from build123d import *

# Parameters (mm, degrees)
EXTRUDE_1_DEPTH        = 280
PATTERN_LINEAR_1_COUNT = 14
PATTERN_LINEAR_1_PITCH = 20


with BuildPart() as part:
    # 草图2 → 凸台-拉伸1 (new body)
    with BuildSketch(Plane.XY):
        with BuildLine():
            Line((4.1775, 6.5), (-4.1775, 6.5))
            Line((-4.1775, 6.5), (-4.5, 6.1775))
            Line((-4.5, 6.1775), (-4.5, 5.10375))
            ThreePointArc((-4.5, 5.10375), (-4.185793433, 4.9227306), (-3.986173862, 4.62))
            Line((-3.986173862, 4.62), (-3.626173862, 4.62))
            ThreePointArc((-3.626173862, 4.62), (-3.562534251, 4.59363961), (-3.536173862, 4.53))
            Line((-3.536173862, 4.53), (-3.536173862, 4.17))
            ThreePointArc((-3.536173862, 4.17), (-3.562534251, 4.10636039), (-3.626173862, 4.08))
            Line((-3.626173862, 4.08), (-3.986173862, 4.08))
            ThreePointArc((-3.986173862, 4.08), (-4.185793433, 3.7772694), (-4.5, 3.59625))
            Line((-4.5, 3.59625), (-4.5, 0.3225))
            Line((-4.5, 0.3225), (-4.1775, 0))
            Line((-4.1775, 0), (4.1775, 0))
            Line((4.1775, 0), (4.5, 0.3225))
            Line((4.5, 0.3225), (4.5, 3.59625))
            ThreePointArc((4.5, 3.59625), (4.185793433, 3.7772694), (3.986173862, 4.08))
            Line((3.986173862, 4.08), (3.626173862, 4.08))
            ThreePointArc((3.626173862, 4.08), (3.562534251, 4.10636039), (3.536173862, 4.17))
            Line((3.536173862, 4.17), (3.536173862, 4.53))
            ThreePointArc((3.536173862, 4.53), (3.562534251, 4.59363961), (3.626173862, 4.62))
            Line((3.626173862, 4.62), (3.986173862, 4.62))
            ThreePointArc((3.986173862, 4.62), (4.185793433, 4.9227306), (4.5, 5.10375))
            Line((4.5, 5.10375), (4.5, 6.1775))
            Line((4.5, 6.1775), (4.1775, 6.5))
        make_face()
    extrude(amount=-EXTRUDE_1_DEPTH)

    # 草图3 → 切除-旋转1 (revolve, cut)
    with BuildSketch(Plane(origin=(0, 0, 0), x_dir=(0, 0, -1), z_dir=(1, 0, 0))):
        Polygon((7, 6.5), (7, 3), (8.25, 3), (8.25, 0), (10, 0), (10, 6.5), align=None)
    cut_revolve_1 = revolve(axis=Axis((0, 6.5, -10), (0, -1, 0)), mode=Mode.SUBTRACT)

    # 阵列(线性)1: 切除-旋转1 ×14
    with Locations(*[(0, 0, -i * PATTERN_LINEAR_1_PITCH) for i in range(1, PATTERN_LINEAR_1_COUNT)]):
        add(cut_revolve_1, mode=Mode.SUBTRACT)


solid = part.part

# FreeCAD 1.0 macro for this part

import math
import FreeCAD as App
import Part
import Sketcher

doc = App.newDocument("Part")
body = doc.addObject("PartDesign::Body", "Body")

# Sketch on XY plane
sketch1 = body.newObject("Sketcher::SketchObject", "Sketch")
sketch1.AttachmentSupport = (doc.getObject("XY_Plane"), [""])
sketch1.MapMode = "FlatFace"
sketch1.addGeometry([
    Part.LineSegment(App.Vector(4.18, 6.5, 0), App.Vector(-4.18, 6.5, 0)),  # 0
    Part.LineSegment(App.Vector(-4.18, 6.5, 0), App.Vector(-4.5, 6.18, 0)),  # 1
    Part.LineSegment(App.Vector(-4.5, 6.18, 0), App.Vector(-4.5, 5.1, 0)),  # 2
    Part.ArcOfCircle(Part.Circle(App.Vector(-4.73, 4.35, 0), App.Vector(0, 0, 1), 0.79), math.radians(20), math.radians(73)),  # 3
    Part.LineSegment(App.Vector(-3.99, 4.62, 0), App.Vector(-3.63, 4.62, 0)),  # 4
    Part.ArcOfCircle(Part.Circle(App.Vector(-3.63, 4.53, 0), App.Vector(0, 0, 1), 0.09), math.radians(0), math.radians(90)),  # 5
    Part.LineSegment(App.Vector(-3.54, 4.53, 0), App.Vector(-3.54, 4.17, 0)),  # 6
    Part.ArcOfCircle(Part.Circle(App.Vector(-3.63, 4.17, 0), App.Vector(0, 0, 1), 0.09), math.radians(-90), math.radians(0)),  # 7
    Part.LineSegment(App.Vector(-3.63, 4.08, 0), App.Vector(-3.99, 4.08, 0)),  # 8
    Part.ArcOfCircle(Part.Circle(App.Vector(-4.73, 4.35, 0), App.Vector(0, 0, 1), 0.79), math.radians(-73), math.radians(-20)),  # 9
    Part.LineSegment(App.Vector(-4.5, 3.6, 0), App.Vector(-4.5, 0.32, 0)),  # 10
    Part.LineSegment(App.Vector(-4.5, 0.32, 0), App.Vector(-4.18, 0, 0)),  # 11
    Part.LineSegment(App.Vector(-4.18, 0, 0), App.Vector(4.18, 0, 0)),  # 12
    Part.LineSegment(App.Vector(4.18, 0, 0), App.Vector(4.5, 0.32, 0)),  # 13
    Part.LineSegment(App.Vector(4.5, 0.32, 0), App.Vector(4.5, 3.6, 0)),  # 14
    Part.ArcOfCircle(Part.Circle(App.Vector(4.73, 4.35, 0), App.Vector(0, 0, 1), 0.79), math.radians(-160), math.radians(-107)),  # 15
    Part.LineSegment(App.Vector(3.99, 4.08, 0), App.Vector(3.63, 4.08, 0)),  # 16
    Part.ArcOfCircle(Part.Circle(App.Vector(3.63, 4.17, 0), App.Vector(0, 0, 1), 0.09), math.radians(180), math.radians(270)),  # 17
    Part.LineSegment(App.Vector(3.54, 4.17, 0), App.Vector(3.54, 4.53, 0)),  # 18
    Part.ArcOfCircle(Part.Circle(App.Vector(3.63, 4.53, 0), App.Vector(0, 0, 1), 0.09), math.radians(90), math.radians(180)),  # 19
    Part.LineSegment(App.Vector(3.63, 4.62, 0), App.Vector(3.99, 4.62, 0)),  # 20
    Part.ArcOfCircle(Part.Circle(App.Vector(4.73, 4.35, 0), App.Vector(0, 0, 1), 0.79), math.radians(107), math.radians(160)),  # 21
    Part.LineSegment(App.Vector(4.5, 5.1, 0), App.Vector(4.5, 6.18, 0)),  # 22
    Part.LineSegment(App.Vector(4.5, 6.18, 0), App.Vector(4.18, 6.5, 0)),  # 23
], False)
sketch1.addConstraint([
    Sketcher.Constraint("Coincident", 0, 2, 1, 1),
    Sketcher.Constraint("Coincident", 1, 2, 2, 1),
    Sketcher.Constraint("Coincident", 2, 2, 3, 2),
    Sketcher.Constraint("Coincident", 3, 1, 4, 1),
    Sketcher.Constraint("Tangent", 4, 2, 5, 2),
    Sketcher.Constraint("Tangent", 5, 1, 6, 1),
    Sketcher.Constraint("Tangent", 6, 2, 7, 2),
    Sketcher.Constraint("Tangent", 7, 1, 8, 1),
    Sketcher.Constraint("Coincident", 8, 2, 9, 2),
    Sketcher.Constraint("Coincident", 9, 1, 10, 1),
    Sketcher.Constraint("Coincident", 10, 2, 11, 1),
    Sketcher.Constraint("Coincident", 11, 2, 12, 1),
    Sketcher.Constraint("Coincident", 12, 2, 13, 1),
    Sketcher.Constraint("Coincident", 13, 2, 14, 1),
    Sketcher.Constraint("Coincident", 14, 2, 15, 2),
    Sketcher.Constraint("Coincident", 15, 1, 16, 1),
    Sketcher.Constraint("Tangent", 16, 2, 17, 2),
    Sketcher.Constraint("Tangent", 17, 1, 18, 1),
    Sketcher.Constraint("Tangent", 18, 2, 19, 2),
    Sketcher.Constraint("Tangent", 19, 1, 20, 1),
    Sketcher.Constraint("Coincident", 20, 2, 21, 2),
    Sketcher.Constraint("Coincident", 21, 1, 22, 1),
    Sketcher.Constraint("Coincident", 22, 2, 23, 1),
    Sketcher.Constraint("Coincident", 23, 2, 0, 1),
    Sketcher.Constraint("Horizontal", 0),
    Sketcher.Constraint("Vertical", 2),
    Sketcher.Constraint("Horizontal", 4),
    Sketcher.Constraint("Vertical", 6),
    Sketcher.Constraint("Horizontal", 8),
    Sketcher.Constraint("Vertical", 10),
    Sketcher.Constraint("Horizontal", 12),
    Sketcher.Constraint("Vertical", 14),
    Sketcher.Constraint("Horizontal", 16),
    Sketcher.Constraint("Vertical", 18),
    Sketcher.Constraint("Horizontal", 20),
    Sketcher.Constraint("Vertical", 22),
    Sketcher.Constraint("Coincident", 9, 3, 3, 3),
    Sketcher.Constraint("Coincident", 21, 3, 15, 3),
    Sketcher.Constraint("Equal", 5, 7),
    Sketcher.Constraint("Equal", 3, 9),
    Sketcher.Constraint("Equal", 9, 15),
    Sketcher.Constraint("Equal", 7, 17),
    Sketcher.Constraint("Equal", 17, 19),
    Sketcher.Constraint("Equal", 15, 21),
    Sketcher.Constraint("Symmetric", 11, 2, 12, 2, -1, 1),
    Sketcher.Constraint("Symmetric", 3, 3, 15, 3, -2),
    Sketcher.Constraint("Symmetric", 7, 3, 17, 3, -2),
    Sketcher.Constraint("Symmetric", 10, 2, 13, 2, -2),
    Sketcher.Constraint("Symmetric", 1, 2, 22, 2, -2),
    Sketcher.Constraint("Perpendicular", 1, 11),
    Sketcher.Constraint("Perpendicular", 11, 13),
    Sketcher.Constraint("Perpendicular", 13, 23),
    Sketcher.Constraint("Horizontal", 5, 3, 19, 3),
    Sketcher.Constraint("Vertical", 3, 1, 8, 2),
    Sketcher.Constraint("Vertical", 2, 2, 9, 1),
    Sketcher.Constraint("Vertical", 0, 2, 11, 2),
    Sketcher.Constraint("Equal", 20, 6),
    Sketcher.Constraint("Radius", 5, 0.09),
    Sketcher.Constraint("DistanceX", 4, 1, 4, 2, 0.36),
    Sketcher.Constraint("DistanceY", -1, 1, 0, 2, 6.5),
    Sketcher.Constraint("DistanceX", 1, 2, -1, 1, 4.5),
    Sketcher.Constraint("DistanceX", 0, 2, 0, 1, 8.355),
    Sketcher.Constraint("DistanceY", -1, 1, 3, 3, 4.35),
    Sketcher.Constraint("DistanceX", 3, 3, 15, 3, 9.45),
    Sketcher.Constraint("Radius", 3, 0.786616),
])
pad1 = body.newObject("PartDesign::Pad", "Pad")
pad1.Profile = sketch1
pad1.Length = 280
pad1.Reversed = True

# Sketch on YZ plane
sketch2 = body.newObject("Sketcher::SketchObject", "Sketch001")
sketch2.AttachmentSupport = (doc.getObject("YZ_Plane"), [""])
sketch2.MapMode = "FlatFace"
sketch2.addGeometry([
    Part.LineSegment(App.Vector(6.5, -7, 0), App.Vector(3, -7, 0)),  # 0
    Part.LineSegment(App.Vector(3, -7, 0), App.Vector(3, -8.2, 0)),  # 1
    Part.LineSegment(App.Vector(3, -8.2, 0), App.Vector(0, -8.2, 0)),  # 2
    Part.LineSegment(App.Vector(0, -8.2, 0), App.Vector(0, -10, 0)),  # 3
    Part.LineSegment(App.Vector(0, -10, 0), App.Vector(6.5, -10, 0)),  # 4
    Part.LineSegment(App.Vector(6.5, -10, 0), App.Vector(6.5, -7, 0)),  # 5
], False)
sketch2.addGeometry(Part.LineSegment(App.Vector(6.5, -10, 0), App.Vector(0, -10, 0)), True)  # axis
sketch2.addConstraint([
    Sketcher.Constraint("Coincident", 0, 2, 1, 1),
    Sketcher.Constraint("Coincident", 1, 2, 2, 1),
    Sketcher.Constraint("Coincident", 2, 2, 3, 1),
    Sketcher.Constraint("Coincident", 3, 2, 4, 1),
    Sketcher.Constraint("Coincident", 4, 2, 5, 1),
    Sketcher.Constraint("Coincident", 5, 2, 0, 1),
    Sketcher.Constraint("Horizontal", 0),
    Sketcher.Constraint("Vertical", 1),
    Sketcher.Constraint("Horizontal", 2),
    Sketcher.Constraint("Vertical", 3),
    Sketcher.Constraint("Horizontal", 4),
    Sketcher.Constraint("Vertical", 5),
    Sketcher.Constraint("Horizontal", 6),
    Sketcher.Constraint("Coincident", 6, 1, 4, 2),
    Sketcher.Constraint("PointOnObject", 2, 2, -2),
    Sketcher.Constraint("PointOnObject", 6, 2, -2),
    Sketcher.Constraint("Equal", 2, 5),
    Sketcher.Constraint("DistanceX", 2, 2, 2, 1, 3.0),
    Sketcher.Constraint("DistanceX", 0, 2, 0, 1, 3.5),
    Sketcher.Constraint("DistanceY", 0, 2, -1, 1, 7.0),
    Sketcher.Constraint("DistanceY", 1, 2, 1, 1, 1.25),
])
groove = body.newObject("PartDesign::Groove", "Groove")
groove.Profile = sketch2
groove.ReferenceAxis = (sketch2, ["Axis0"])
groove.Angle = 360
doc.recompute()

linearpattern = body.newObject("PartDesign::LinearPattern", "LinearPattern")
linearpattern.Originals = [groove]
linearpattern.Direction = (doc.getObject("Z_Axis"), [""])
linearpattern.Mode = "offset"
linearpattern.Offset = 20
linearpattern.Occurrences = 14
linearpattern.Reversed = True
body.Tip = linearpattern

doc.recompute()
